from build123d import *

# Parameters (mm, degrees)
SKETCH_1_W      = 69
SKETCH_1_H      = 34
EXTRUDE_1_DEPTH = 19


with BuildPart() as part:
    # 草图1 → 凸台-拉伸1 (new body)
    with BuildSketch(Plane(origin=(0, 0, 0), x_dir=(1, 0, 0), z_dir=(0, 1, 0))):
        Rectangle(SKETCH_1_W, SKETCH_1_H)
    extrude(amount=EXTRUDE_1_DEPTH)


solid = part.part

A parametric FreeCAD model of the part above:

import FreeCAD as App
import Part
import Sketcher


def add_polygon(sketch, points):
    """Adds a closed chain of lines whose ends are joined by coincident constraints."""
    first, n = sketch.GeometryCount, len(points)
    for a, b in zip(points, points[1:] + points[:1]):
        sketch.addGeometry(Part.LineSegment(App.Vector(*a, 0), App.Vector(*b, 0)), False)
    for i in range(n):
        sketch.addConstraint(Sketcher.Constraint("Coincident", first + i, 2, first + (i + 1) % n, 1))

doc = App.newDocument("Part")
params = doc.addObject("Spreadsheet::Sheet", "Params")
for row, (alias, value) in enumerate([
    ("sketch1_width", "69 mm"),
    ("sketch1_height", "34 mm"),
    ("pad1_length", "19 mm"),
], start=1):
    params.set(f"A{row}", alias)
    params.set(f"B{row}", "=" + value)
    params.setAlias(f"B{row}", alias)

body = doc.addObject("PartDesign::Body", "Body")

# Sketch on XZ plane
sketch1 = body.newObject("Sketcher::SketchObject", "Sketch")
sketch1.AttachmentSupport = (doc.getObject("XZ_Plane"), [""])
sketch1.MapMode = "FlatFace"
add_polygon(sketch1, [(-34, -17), (-34, 17), (34, 17), (34, -17)])  # lines 0-3
sketch1.addConstraint([
    Sketcher.Constraint("Vertical", 0),
    Sketcher.Constraint("Horizontal", 1),
    Sketcher.Constraint("Vertical", 2),
    Sketcher.Constraint("Horizontal", 3),
    Sketcher.Constraint("Symmetric", 0, 2, 2, 2, -1, 1),
    Sketcher.Constraint("DistanceX", 1, 1, 1, 2, 69.0),
    Sketcher.Constraint("DistanceY", 0, 1, 0, 2, 34.0),
])
sketch1.setExpression("Constraints[9]", "Params.sketch1_width")
sketch1.setExpression("Constraints[10]", "Params.sketch1_height")
pad1 = body.newObject("PartDesign::Pad", "Pad")
pad1.Profile = sketch1
pad1.setExpression("Length", "Params.pad1_length")
pad1.Reversed = True

doc.recompute()
